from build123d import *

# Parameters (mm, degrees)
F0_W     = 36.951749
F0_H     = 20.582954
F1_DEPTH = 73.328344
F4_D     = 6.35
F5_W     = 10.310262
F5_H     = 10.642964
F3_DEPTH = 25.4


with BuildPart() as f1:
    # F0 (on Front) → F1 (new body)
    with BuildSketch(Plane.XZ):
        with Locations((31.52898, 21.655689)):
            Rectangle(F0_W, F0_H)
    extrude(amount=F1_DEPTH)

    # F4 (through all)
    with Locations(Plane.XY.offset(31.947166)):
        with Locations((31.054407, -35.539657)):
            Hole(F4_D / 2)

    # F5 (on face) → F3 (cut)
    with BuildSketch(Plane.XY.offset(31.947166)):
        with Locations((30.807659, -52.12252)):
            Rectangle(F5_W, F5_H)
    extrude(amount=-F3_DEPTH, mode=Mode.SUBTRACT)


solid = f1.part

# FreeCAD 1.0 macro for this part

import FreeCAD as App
import Part
import Sketcher

V = App.Vector
Q = App.Units.Quantity


def add_polygon(sketch, points):
    """Adds a closed chain of lines whose ends are joined by coincident constraints."""
    first, n = sketch.GeometryCount, len(points)
    for a, b in zip(points, points[1:] + points[:1]):
        sketch.addGeometry(Part.LineSegment(App.Vector(*a, 0), App.Vector(*b, 0)), False)
    for i in range(n):
        sketch.addConstraint(Sketcher.Constraint("Coincident", first + i, 2, first + (i + 1) % n, 1))

doc = App.newDocument("Part")
body = doc.addObject("PartDesign::Body", "Body")

# Sketch on XZ plane
sketch1 = body.newObject("Sketcher::SketchObject", "Sketch")
sketch1.AttachmentSupport = (doc.getObject("XZ_Plane"), [""])
sketch1.MapMode = "FlatFace"
add_polygon(sketch1, [(13.053105, 31.947166), (13.053105, 11.364212), (50.004855, 11.364212), (50.004855, 31.947166)])  # lines 0-3
sketch1.addConstraint(Sketcher.Constraint("Vertical", 0))
sketch1.addConstraint(Sketcher.Constraint("Horizontal", 1))
sketch1.addConstraint(Sketcher.Constraint("Vertical", 2))
sketch1.addConstraint(Sketcher.Constraint("Horizontal", 3))
sketch1.addConstraint(Sketcher.Constraint("DistanceX", 1, 1, 1, 2, 36.951749))
sketch1.addConstraint(Sketcher.Constraint("DistanceY", 0, 2, 0, 1, 20.582954))
sketch1.addConstraint(Sketcher.Constraint("DistanceX", -1, 1, 0, 2, 13.053105))
sketch1.addConstraint(Sketcher.Constraint("DistanceY", -1, 1, 0, 2, 11.364212))
pad1 = body.newObject("PartDesign::Pad", "Pad")
pad1.Profile = sketch1
pad1.Length = 73.328344

# Sketch on XY plane
sketch2 = body.newObject("Sketcher::SketchObject", "Sketch001")
sketch2.AttachmentSupport = (doc.getObject("XY_Plane"), [""])
sketch2.MapMode = "FlatFace"
sketch2.AttachmentOffset = App.Placement(V(0, 0, 31.947166), App.Rotation())
sketch2.addGeometry(Part.Circle(V(31.054407, -35.539657, 0), V(0, 0, 1), 3.175), False)
sketch2.addConstraint(Sketcher.Constraint("Diameter", 0, Q("0.25 in")))
sketch2.addConstraint(Sketcher.Constraint("DistanceX", -1, 1, 0, 3, 31.054407))
sketch2.addConstraint(Sketcher.Constraint("DistanceY", 0, 3, -1, 1, 35.539657))
doc.recompute()
hole = body.newObject("PartDesign::Hole", "Hole")
hole.Profile = sketch2
hole.ThreadType = "None"
hole.Diameter = Q("0.25 in")
hole.DepthType = "ThroughAll"

# Sketch on XY plane
sketch3 = body.newObject("Sketcher::SketchObject", "Sketch002")
sketch3.AttachmentSupport = (doc.getObject("XY_Plane"), [""])
sketch3.MapMode = "FlatFace"
sketch3.AttachmentOffset = App.Placement(V(0, 0, 31.947166), App.Rotation())
add_polygon(sketch3, [(25.652528, -46.801038), (25.652528, -57.444002), (35.96279, -57.444002), (35.96279, -46.801038)])  # lines 0-3
sketch3.addConstraint(Sketcher.Constraint("Vertical", 0))
sketch3.addConstraint(Sketcher.Constraint("Horizontal", 1))
sketch3.addConstraint(Sketcher.Constraint("Vertical", 2))
sketch3.addConstraint(Sketcher.Constraint("Horizontal", 3))
sketch3.addConstraint(Sketcher.Constraint("DistanceX", 1, 1, 1, 2, 10.310262))
sketch3.addConstraint(Sketcher.Constraint("DistanceY", 0, 2, -1, 1, 57.444002))
sketch3.addConstraint(Sketcher.Constraint("DistanceY", 0, 2, 0, 1, 10.642964))
sketch3.addConstraint(Sketcher.Constraint("DistanceX", -1, 1, 0, 2, 25.652528))
pocket1 = body.newObject("PartDesign::Pocket", "Pocket")
pocket1.Profile = sketch3
pocket1.Length = Q("1 in")

doc.recompute()
